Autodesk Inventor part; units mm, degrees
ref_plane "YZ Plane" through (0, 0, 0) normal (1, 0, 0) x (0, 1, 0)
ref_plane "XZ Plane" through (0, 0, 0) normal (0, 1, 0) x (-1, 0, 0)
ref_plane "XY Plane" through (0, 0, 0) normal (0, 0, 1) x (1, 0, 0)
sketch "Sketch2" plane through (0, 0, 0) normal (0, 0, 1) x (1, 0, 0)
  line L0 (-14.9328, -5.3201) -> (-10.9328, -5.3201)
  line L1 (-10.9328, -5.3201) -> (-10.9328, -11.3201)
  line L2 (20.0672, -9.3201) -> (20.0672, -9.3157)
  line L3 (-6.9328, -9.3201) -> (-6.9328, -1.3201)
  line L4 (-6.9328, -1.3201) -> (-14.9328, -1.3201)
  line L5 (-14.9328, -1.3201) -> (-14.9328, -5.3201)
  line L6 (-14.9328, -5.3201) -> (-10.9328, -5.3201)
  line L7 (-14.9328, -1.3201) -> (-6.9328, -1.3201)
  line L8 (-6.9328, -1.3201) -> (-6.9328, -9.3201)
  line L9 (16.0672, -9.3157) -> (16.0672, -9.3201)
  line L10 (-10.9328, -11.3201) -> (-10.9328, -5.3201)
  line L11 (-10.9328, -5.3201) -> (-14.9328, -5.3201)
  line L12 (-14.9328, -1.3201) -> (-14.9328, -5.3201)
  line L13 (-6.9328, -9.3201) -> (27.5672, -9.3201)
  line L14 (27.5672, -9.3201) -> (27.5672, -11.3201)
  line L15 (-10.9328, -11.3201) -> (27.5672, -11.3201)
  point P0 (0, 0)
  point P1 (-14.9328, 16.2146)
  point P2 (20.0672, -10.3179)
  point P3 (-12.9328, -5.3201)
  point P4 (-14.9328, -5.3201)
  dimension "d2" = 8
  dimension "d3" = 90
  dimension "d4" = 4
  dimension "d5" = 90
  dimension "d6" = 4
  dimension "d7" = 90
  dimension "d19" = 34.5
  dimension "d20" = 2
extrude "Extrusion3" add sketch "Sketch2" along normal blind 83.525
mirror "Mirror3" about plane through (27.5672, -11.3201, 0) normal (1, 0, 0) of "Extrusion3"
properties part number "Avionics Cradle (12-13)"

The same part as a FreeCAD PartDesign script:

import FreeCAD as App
import Part
import Sketcher

V = App.Vector
Q = App.Units.Quantity

doc = App.newDocument("Part")
body = doc.addObject("PartDesign::Body", "Body")

# Sketch on XY plane
sketch1 = doc.addObject("Sketcher::SketchObject", "Sketch")
body.addObject(sketch1)
sketch1.AttachmentSupport = (doc.XY_Plane, [""])
sketch1.MapMode = "FlatFace"
sketch1.addGeometry([
    Part.LineSegment(V(-14.9328, -1.3201, 0), V(-14.9328, -5.3201, 0)),  # 0
    Part.LineSegment(V(-14.9328, -5.3201, 0), V(-10.9328, -5.3201, 0)),  # 1
    Part.LineSegment(V(-10.9328, -5.3201, 0), V(-10.9328, -11.3201, 0)),  # 2
    Part.LineSegment(V(-10.9328, -11.3201, 0), V(27.5672, -11.3201, 0)),  # 3
    Part.LineSegment(V(27.5672, -11.3201, 0), V(27.5672, -9.3201, 0)),  # 4
    Part.LineSegment(V(27.5672, -9.3201, 0), V(-6.9328, -9.3201, 0)),  # 5
    Part.LineSegment(V(-6.9328, -9.3201, 0), V(-6.9328, -1.3201, 0)),  # 6
    Part.LineSegment(V(-6.9328, -1.3201, 0), V(-14.9328, -1.3201, 0)),  # 7
], False)
sketch1.addConstraint([
    Sketcher.Constraint("Coincident", 0, 2, 1, 1),
    Sketcher.Constraint("Coincident", 1, 2, 2, 1),
    Sketcher.Constraint("Coincident", 2, 2, 3, 1),
    Sketcher.Constraint("Coincident", 3, 2, 4, 1),
    Sketcher.Constraint("Coincident", 4, 2, 5, 1),
    Sketcher.Constraint("Coincident", 5, 2, 6, 1),
    Sketcher.Constraint("Coincident", 6, 2, 7, 1),
    Sketcher.Constraint("Coincident", 7, 2, 0, 1),
    Sketcher.Constraint("Vertical", 0),
    Sketcher.Constraint("Horizontal", 1),
    Sketcher.Constraint("Vertical", 2),
    Sketcher.Constraint("Horizontal", 3),
    Sketcher.Constraint("Vertical", 4),
    Sketcher.Constraint("Horizontal", 5),
    Sketcher.Constraint("Vertical", 6),
    Sketcher.Constraint("Horizontal", 7),
    Sketcher.Constraint("Equal", 1, 0),
    Sketcher.Constraint("Equal", 7, 6),
    Sketcher.Constraint("DistanceX", 1, 1, 1, 2, Q("4 mm")),
    Sketcher.Constraint("DistanceX", 7, 2, 7, 1, Q("8 mm")),
    Sketcher.Constraint("DistanceY", 4, 1, 4, 2, Q("2 mm")),
    Sketcher.Constraint("DistanceX", 5, 2, 5, 1, Q("34.5 mm")),
    Sketcher.Constraint("DistanceY", 0, 2, -1, 1, Q("5.32 mm")),
    Sketcher.Constraint("DistanceX", 0, 2, -1, 1, Q("14.9328 mm")),
])
pad1 = doc.addObject("PartDesign::Pad", "Pad")
body.addObject(pad1)
pad1.Profile = sketch1
pad1.Length = 83.525
doc.recompute()

datumplane = doc.addObject("PartDesign::Plane", "DatumPlane")
body.addObject(datumplane)
datumplane.AttachmentSupport = (doc.YZ_Plane, [""])
datumplane.MapMode = "FlatFace"
datumplane.AttachmentOffset = App.Placement(V(0, 0, 27.5672), App.Rotation())
mirrored = doc.addObject("PartDesign::Mirrored", "Mirrored")
body.addObject(mirrored)
mirrored.Originals = [pad1]
mirrored.MirrorPlane = (datumplane, [""])
body.Tip = mirrored

doc.recompute()
